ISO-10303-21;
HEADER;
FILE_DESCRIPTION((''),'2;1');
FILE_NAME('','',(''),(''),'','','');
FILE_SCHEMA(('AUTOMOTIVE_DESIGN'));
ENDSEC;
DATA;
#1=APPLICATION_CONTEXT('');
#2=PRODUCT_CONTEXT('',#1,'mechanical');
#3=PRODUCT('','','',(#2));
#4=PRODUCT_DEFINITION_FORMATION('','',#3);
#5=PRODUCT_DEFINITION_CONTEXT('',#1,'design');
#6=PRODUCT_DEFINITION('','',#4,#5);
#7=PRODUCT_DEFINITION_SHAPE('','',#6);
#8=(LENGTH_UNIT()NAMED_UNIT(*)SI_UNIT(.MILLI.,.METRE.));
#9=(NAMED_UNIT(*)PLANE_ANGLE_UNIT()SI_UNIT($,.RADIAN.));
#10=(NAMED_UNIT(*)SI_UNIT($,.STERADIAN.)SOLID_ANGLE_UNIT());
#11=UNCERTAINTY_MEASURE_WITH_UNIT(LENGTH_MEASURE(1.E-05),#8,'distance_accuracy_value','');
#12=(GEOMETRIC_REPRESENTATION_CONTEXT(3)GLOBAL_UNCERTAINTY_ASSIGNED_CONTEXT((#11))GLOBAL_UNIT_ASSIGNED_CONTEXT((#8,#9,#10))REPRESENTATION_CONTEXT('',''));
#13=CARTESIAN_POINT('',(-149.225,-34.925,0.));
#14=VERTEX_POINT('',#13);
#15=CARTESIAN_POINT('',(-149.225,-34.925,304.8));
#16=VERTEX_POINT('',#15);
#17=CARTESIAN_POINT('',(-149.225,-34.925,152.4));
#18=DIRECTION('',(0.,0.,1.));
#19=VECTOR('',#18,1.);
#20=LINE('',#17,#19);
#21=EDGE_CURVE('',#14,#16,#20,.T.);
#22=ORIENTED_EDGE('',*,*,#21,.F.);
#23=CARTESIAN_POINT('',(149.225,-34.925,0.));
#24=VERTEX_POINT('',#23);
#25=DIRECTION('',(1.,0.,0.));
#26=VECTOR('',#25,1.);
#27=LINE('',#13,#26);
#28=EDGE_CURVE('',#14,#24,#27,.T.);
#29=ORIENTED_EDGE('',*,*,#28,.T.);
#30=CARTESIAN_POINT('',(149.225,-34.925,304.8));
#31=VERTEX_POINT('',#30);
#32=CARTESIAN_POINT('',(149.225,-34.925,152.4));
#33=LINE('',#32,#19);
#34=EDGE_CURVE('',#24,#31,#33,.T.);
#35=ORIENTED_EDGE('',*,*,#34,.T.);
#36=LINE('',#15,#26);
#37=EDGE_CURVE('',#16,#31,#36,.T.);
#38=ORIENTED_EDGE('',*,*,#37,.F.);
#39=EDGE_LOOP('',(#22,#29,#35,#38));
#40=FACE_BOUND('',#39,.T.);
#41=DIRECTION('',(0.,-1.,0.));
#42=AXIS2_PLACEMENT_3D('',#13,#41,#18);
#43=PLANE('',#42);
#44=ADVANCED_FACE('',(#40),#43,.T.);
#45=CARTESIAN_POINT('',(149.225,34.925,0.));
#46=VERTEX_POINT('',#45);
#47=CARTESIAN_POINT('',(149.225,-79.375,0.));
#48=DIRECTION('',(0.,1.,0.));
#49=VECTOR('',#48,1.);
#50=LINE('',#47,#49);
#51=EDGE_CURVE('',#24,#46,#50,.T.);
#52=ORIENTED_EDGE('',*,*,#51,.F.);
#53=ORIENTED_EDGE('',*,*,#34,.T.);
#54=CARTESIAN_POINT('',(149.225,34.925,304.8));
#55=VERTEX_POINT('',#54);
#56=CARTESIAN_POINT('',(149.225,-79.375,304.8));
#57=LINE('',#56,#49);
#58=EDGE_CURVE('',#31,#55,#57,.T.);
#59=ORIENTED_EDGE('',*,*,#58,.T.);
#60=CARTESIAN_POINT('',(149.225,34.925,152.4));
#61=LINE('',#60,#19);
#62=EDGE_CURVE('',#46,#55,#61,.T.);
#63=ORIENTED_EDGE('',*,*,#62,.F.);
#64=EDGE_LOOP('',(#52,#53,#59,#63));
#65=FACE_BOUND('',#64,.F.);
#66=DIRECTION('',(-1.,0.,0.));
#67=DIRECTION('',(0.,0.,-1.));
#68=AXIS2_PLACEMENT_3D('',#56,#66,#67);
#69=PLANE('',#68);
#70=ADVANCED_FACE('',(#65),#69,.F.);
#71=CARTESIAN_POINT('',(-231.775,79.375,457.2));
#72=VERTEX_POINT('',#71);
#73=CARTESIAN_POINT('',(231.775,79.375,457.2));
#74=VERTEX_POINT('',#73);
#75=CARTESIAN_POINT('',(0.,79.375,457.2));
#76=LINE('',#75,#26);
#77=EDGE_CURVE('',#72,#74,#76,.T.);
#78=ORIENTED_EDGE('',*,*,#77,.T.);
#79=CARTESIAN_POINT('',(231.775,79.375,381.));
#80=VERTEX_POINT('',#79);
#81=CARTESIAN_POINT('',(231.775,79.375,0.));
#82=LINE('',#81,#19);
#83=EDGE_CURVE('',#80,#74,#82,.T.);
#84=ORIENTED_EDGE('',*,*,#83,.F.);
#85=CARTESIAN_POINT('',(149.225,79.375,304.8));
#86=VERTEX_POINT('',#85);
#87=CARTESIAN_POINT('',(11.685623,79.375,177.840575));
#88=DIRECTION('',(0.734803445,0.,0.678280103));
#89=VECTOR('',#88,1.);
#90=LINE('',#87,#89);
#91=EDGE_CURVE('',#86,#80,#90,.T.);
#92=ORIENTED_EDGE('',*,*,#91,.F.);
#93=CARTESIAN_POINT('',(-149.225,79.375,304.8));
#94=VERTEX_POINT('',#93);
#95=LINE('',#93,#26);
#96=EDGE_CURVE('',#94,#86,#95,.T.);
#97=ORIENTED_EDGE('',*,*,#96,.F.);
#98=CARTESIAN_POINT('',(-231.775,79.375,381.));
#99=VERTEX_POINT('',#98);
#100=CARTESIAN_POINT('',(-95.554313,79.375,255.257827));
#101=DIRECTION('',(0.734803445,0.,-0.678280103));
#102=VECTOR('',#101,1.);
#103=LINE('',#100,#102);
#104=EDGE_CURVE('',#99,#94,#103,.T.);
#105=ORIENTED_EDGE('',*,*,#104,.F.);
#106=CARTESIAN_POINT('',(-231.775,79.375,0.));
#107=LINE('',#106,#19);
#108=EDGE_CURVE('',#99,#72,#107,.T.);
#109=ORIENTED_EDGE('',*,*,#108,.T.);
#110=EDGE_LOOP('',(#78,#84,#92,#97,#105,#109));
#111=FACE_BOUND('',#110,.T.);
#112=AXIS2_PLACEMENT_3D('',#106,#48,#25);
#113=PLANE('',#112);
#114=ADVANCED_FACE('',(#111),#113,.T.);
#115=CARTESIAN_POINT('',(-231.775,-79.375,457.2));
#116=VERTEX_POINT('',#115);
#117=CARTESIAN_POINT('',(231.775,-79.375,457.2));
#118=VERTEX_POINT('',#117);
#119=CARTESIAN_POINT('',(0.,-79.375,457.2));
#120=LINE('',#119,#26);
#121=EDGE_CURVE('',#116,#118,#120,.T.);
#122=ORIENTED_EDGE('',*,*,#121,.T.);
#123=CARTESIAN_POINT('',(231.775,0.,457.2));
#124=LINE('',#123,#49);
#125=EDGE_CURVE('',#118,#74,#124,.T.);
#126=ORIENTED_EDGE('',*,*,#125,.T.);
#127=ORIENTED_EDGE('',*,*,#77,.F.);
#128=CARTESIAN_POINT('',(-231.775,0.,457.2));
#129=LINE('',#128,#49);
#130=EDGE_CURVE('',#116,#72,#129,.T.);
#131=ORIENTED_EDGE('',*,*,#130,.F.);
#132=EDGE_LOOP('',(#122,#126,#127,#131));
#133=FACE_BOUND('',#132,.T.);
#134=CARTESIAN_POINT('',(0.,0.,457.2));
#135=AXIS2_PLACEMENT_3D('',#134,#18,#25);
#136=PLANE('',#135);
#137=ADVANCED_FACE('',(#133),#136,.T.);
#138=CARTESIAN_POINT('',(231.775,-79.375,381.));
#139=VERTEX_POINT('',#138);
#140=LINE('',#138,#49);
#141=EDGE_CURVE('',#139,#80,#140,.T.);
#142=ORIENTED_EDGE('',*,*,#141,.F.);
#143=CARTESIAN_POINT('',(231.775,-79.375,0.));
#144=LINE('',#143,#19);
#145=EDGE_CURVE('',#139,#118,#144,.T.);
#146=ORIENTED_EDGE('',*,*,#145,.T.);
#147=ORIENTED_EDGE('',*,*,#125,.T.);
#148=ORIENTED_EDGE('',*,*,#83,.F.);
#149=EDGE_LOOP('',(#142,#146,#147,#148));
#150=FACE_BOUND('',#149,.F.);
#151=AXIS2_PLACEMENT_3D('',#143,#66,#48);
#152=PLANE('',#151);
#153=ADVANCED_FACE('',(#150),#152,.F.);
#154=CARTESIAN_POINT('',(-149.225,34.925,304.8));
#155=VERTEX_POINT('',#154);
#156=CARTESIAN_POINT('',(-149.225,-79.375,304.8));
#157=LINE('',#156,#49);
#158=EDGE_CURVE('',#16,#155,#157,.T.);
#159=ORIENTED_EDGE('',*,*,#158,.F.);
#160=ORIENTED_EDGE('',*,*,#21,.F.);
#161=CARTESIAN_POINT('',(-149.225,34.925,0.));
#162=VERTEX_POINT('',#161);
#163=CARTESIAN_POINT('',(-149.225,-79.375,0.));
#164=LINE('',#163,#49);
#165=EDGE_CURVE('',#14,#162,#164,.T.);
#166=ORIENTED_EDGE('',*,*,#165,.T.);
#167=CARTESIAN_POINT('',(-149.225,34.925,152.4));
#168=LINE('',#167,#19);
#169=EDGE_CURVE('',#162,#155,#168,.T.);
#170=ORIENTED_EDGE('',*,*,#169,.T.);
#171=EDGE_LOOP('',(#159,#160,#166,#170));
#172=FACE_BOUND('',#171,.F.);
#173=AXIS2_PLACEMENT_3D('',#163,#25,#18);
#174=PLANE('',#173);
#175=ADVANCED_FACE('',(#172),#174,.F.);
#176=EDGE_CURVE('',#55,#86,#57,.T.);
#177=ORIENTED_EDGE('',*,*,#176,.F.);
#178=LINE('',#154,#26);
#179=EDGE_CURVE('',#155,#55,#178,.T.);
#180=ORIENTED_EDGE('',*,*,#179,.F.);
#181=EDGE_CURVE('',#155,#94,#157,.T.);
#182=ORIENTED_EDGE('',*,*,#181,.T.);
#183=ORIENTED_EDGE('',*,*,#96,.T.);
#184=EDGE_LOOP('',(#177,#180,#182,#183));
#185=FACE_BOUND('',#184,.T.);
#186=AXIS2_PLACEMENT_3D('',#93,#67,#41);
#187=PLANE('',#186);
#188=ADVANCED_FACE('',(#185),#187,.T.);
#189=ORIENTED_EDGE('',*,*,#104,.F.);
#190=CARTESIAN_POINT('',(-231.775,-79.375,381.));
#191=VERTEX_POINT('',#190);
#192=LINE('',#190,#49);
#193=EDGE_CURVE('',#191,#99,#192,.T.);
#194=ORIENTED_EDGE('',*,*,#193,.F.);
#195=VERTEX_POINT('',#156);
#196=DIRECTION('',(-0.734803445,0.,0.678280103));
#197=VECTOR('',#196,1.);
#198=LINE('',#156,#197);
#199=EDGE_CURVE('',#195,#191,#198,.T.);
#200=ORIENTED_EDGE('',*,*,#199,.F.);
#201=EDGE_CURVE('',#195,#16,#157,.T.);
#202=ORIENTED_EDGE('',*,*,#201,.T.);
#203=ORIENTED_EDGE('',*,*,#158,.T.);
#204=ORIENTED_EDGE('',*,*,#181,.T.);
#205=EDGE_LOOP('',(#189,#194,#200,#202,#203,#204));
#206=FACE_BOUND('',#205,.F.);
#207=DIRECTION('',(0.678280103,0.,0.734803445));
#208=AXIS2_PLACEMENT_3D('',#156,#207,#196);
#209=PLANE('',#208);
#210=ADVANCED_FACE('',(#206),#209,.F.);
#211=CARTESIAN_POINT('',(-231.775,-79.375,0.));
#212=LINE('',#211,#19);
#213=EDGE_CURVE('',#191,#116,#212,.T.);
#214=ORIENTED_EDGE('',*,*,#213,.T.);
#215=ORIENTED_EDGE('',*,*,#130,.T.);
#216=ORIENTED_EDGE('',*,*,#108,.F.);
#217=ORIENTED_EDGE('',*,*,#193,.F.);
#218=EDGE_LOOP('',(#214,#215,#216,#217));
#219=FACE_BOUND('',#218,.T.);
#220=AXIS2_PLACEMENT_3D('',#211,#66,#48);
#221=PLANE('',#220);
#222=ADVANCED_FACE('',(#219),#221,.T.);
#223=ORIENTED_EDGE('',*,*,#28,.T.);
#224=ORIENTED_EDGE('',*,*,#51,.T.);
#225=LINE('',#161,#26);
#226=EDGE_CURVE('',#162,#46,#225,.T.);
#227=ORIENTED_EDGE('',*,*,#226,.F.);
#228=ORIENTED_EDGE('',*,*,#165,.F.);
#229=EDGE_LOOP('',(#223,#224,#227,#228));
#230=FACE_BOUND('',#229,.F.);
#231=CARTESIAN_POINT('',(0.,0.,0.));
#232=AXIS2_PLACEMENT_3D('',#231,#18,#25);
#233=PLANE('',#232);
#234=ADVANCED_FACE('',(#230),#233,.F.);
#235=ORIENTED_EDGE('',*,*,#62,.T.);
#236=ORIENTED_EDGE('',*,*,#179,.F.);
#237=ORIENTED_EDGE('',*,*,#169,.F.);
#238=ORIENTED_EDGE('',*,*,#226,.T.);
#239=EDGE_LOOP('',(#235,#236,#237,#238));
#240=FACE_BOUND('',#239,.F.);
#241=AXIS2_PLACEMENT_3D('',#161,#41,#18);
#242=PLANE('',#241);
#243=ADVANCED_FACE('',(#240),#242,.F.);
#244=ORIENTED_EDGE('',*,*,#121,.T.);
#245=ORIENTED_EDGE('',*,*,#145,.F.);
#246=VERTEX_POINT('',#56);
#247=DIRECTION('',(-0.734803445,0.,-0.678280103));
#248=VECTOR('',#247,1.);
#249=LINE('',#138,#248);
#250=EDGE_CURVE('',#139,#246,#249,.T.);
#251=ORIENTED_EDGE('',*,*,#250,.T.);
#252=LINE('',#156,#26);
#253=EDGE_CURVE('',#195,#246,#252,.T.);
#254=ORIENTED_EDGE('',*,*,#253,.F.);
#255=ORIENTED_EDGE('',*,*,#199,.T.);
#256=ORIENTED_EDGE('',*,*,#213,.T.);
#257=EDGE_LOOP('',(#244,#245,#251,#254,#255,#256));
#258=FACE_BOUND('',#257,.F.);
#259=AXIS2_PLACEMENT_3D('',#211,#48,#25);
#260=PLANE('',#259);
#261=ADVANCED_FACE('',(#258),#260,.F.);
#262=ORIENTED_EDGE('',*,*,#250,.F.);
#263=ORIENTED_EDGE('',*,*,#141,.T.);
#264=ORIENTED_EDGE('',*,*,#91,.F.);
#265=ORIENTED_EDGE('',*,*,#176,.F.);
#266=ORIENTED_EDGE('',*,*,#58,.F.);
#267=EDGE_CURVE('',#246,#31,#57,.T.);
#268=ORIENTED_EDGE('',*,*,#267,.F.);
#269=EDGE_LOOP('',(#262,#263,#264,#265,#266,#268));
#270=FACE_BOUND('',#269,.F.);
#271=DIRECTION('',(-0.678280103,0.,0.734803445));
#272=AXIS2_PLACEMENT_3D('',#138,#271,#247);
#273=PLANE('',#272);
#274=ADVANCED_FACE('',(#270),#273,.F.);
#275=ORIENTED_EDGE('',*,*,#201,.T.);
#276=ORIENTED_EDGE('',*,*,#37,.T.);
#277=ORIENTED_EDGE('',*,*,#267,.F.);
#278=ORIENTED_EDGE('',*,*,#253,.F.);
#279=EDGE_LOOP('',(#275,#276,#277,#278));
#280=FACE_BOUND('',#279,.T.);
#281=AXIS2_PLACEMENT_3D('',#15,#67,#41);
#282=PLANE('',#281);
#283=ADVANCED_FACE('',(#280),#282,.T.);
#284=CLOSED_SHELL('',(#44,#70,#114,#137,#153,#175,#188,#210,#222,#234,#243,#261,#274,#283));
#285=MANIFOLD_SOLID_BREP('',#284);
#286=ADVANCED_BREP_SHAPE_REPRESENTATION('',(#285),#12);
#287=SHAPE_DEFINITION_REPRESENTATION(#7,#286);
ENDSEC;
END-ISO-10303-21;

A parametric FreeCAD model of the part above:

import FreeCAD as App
import Part
import Sketcher

V = App.Vector
Q = App.Units.Quantity


def add_polygon(sketch, points):
    """Adds a closed chain of lines whose ends are joined by coincident constraints."""
    first, n = sketch.GeometryCount, len(points)
    for a, b in zip(points, points[1:] + points[:1]):
        sketch.addGeometry(Part.LineSegment(App.Vector(*a, 0), App.Vector(*b, 0)), False)
    for i in range(n):
        sketch.addConstraint(Sketcher.Constraint("Coincident", first + i, 2, first + (i + 1) % n, 1))

doc = App.newDocument("Part")
body = doc.addObject("PartDesign::Body", "Body")

sketch1 = body.newObject("Sketcher::SketchObject", "Sketch")
sketch1.AttachmentSupport = (doc.getObject("XY_Plane"), [""])
sketch1.MapMode = "FlatFace"
add_polygon(sketch1, [(-231.775, 79.375), (-231.775, -79.375), (231.775, -79.375), (231.775, 79.375)])
sketch1.addConstraint([
    Sketcher.Constraint("Vertical", 0),
    Sketcher.Constraint("Horizontal", 1),
    Sketcher.Constraint("Vertical", 2),
    Sketcher.Constraint("Horizontal", 3),
    Sketcher.Constraint("Symmetric", 0, 2, 2, 2, -1, 1),
    Sketcher.Constraint("DistanceX", 1, 1, 1, 2, Q("18.25 in")),
    Sketcher.Constraint("DistanceY", 0, 2, 0, 1, Q("6.25 in")),
])
pad1 = body.newObject("PartDesign::Pad", "Pad")
pad1.Profile = sketch1
pad1.Length = Q("18 in")

sketch2 = body.newObject("Sketcher::SketchObject", "Sketch001")
sketch2.AttachmentSupport = (doc.getObject("XZ_Plane"), [""])
sketch2.MapMode = "FlatFace"
sketch2.AttachmentOffset = App.Placement(V(0, 0, 3.125 * 25.4), App.Rotation())
add_polygon(sketch2, [(-149.225, 0), (-149.225, 304.8), (-231.775, 381), (-231.775, 0)])
add_polygon(sketch2, [(149.225, 304.8), (149.225, 0), (231.775, 0), (231.775, 381)])
sketch2.addConstraint([
    Sketcher.Constraint("Vertical", 0),
    Sketcher.Constraint("Vertical", 2),
    Sketcher.Constraint("Horizontal", 3),
    Sketcher.Constraint("Vertical", 4),
    Sketcher.Constraint("Horizontal", 5),
    Sketcher.Constraint("Vertical", 6),
    Sketcher.Constraint("Symmetric", 3, 2, 4, 2, -1, 1),
    Sketcher.Constraint("Symmetric", 2, 2, 5, 2, -2),
    Sketcher.Constraint("Horizontal", 1, 2, 6, 2),
    Sketcher.Constraint("Horizontal", 0, 2, 7, 2),
    Sketcher.Constraint("DistanceY", 0, 1, 0, 2, Q("12 in")),
    Sketcher.Constraint("DistanceY", 2, 2, 2, 1, Q("15 in")),
    Sketcher.Constraint("DistanceX", 2, 2, 4, 2, Q("15 in")),
    Sketcher.Constraint("DistanceX", 3, 1, 3, 2, Q("3.25 in")),
])
pocket1 = body.newObject("PartDesign::Pocket", "Pocket")
pocket1.Profile = sketch2
pocket1.Type = "ThroughAll"

sketch3 = body.newObject("Sketcher::SketchObject", "Sketch002")
sketch3.AttachmentSupport = (doc.getObject("YZ_Plane"), [""])
sketch3.MapMode = "FlatFace"
sketch3.AttachmentOffset = App.Placement(V(0, 0, -5.875 * 25.4), App.Rotation())
add_polygon(sketch3, [(79.375, 304.8), (79.375, 0), (34.925, 0), (34.925, 304.8)])
add_polygon(sketch3, [(-34.925, 304.8), (-34.925, 0), (-79.375, 0), (-79.375, 304.8)])
sketch3.addConstraint([
    Sketcher.Constraint("Vertical", 0),
    Sketcher.Constraint("Horizontal", 1),
    Sketcher.Constraint("Vertical", 2),
    Sketcher.Constraint("Horizontal", 3),
    Sketcher.Constraint("Vertical", 4),
    Sketcher.Constraint("Horizontal", 5),
    Sketcher.Constraint("Vertical", 6),
    Sketcher.Constraint("Horizontal", 7),
    Sketcher.Constraint("Symmetric", 1, 2, 4, 2, -1, 1),
    Sketcher.Constraint("Symmetric", 0, 2, 5, 2, -2),
    Sketcher.Constraint("Horizontal", 3, 2, 6, 2),
    Sketcher.Constraint("DistanceY", 0, 2, 0, 1, Q("12 in")),
    Sketcher.Constraint("DistanceX", 1, 2, 1, 1, Q("1.75 in")),
    Sketcher.Constraint("DistanceX", 4, 2, 0, 2, Q("4.5 in")),
])
pocket2 = body.newObject("PartDesign::Pocket", "Pocket001")
pocket2.Profile = sketch3
pocket2.Type = "ThroughAll"
pocket2.Reversed = True

doc.recompute()
